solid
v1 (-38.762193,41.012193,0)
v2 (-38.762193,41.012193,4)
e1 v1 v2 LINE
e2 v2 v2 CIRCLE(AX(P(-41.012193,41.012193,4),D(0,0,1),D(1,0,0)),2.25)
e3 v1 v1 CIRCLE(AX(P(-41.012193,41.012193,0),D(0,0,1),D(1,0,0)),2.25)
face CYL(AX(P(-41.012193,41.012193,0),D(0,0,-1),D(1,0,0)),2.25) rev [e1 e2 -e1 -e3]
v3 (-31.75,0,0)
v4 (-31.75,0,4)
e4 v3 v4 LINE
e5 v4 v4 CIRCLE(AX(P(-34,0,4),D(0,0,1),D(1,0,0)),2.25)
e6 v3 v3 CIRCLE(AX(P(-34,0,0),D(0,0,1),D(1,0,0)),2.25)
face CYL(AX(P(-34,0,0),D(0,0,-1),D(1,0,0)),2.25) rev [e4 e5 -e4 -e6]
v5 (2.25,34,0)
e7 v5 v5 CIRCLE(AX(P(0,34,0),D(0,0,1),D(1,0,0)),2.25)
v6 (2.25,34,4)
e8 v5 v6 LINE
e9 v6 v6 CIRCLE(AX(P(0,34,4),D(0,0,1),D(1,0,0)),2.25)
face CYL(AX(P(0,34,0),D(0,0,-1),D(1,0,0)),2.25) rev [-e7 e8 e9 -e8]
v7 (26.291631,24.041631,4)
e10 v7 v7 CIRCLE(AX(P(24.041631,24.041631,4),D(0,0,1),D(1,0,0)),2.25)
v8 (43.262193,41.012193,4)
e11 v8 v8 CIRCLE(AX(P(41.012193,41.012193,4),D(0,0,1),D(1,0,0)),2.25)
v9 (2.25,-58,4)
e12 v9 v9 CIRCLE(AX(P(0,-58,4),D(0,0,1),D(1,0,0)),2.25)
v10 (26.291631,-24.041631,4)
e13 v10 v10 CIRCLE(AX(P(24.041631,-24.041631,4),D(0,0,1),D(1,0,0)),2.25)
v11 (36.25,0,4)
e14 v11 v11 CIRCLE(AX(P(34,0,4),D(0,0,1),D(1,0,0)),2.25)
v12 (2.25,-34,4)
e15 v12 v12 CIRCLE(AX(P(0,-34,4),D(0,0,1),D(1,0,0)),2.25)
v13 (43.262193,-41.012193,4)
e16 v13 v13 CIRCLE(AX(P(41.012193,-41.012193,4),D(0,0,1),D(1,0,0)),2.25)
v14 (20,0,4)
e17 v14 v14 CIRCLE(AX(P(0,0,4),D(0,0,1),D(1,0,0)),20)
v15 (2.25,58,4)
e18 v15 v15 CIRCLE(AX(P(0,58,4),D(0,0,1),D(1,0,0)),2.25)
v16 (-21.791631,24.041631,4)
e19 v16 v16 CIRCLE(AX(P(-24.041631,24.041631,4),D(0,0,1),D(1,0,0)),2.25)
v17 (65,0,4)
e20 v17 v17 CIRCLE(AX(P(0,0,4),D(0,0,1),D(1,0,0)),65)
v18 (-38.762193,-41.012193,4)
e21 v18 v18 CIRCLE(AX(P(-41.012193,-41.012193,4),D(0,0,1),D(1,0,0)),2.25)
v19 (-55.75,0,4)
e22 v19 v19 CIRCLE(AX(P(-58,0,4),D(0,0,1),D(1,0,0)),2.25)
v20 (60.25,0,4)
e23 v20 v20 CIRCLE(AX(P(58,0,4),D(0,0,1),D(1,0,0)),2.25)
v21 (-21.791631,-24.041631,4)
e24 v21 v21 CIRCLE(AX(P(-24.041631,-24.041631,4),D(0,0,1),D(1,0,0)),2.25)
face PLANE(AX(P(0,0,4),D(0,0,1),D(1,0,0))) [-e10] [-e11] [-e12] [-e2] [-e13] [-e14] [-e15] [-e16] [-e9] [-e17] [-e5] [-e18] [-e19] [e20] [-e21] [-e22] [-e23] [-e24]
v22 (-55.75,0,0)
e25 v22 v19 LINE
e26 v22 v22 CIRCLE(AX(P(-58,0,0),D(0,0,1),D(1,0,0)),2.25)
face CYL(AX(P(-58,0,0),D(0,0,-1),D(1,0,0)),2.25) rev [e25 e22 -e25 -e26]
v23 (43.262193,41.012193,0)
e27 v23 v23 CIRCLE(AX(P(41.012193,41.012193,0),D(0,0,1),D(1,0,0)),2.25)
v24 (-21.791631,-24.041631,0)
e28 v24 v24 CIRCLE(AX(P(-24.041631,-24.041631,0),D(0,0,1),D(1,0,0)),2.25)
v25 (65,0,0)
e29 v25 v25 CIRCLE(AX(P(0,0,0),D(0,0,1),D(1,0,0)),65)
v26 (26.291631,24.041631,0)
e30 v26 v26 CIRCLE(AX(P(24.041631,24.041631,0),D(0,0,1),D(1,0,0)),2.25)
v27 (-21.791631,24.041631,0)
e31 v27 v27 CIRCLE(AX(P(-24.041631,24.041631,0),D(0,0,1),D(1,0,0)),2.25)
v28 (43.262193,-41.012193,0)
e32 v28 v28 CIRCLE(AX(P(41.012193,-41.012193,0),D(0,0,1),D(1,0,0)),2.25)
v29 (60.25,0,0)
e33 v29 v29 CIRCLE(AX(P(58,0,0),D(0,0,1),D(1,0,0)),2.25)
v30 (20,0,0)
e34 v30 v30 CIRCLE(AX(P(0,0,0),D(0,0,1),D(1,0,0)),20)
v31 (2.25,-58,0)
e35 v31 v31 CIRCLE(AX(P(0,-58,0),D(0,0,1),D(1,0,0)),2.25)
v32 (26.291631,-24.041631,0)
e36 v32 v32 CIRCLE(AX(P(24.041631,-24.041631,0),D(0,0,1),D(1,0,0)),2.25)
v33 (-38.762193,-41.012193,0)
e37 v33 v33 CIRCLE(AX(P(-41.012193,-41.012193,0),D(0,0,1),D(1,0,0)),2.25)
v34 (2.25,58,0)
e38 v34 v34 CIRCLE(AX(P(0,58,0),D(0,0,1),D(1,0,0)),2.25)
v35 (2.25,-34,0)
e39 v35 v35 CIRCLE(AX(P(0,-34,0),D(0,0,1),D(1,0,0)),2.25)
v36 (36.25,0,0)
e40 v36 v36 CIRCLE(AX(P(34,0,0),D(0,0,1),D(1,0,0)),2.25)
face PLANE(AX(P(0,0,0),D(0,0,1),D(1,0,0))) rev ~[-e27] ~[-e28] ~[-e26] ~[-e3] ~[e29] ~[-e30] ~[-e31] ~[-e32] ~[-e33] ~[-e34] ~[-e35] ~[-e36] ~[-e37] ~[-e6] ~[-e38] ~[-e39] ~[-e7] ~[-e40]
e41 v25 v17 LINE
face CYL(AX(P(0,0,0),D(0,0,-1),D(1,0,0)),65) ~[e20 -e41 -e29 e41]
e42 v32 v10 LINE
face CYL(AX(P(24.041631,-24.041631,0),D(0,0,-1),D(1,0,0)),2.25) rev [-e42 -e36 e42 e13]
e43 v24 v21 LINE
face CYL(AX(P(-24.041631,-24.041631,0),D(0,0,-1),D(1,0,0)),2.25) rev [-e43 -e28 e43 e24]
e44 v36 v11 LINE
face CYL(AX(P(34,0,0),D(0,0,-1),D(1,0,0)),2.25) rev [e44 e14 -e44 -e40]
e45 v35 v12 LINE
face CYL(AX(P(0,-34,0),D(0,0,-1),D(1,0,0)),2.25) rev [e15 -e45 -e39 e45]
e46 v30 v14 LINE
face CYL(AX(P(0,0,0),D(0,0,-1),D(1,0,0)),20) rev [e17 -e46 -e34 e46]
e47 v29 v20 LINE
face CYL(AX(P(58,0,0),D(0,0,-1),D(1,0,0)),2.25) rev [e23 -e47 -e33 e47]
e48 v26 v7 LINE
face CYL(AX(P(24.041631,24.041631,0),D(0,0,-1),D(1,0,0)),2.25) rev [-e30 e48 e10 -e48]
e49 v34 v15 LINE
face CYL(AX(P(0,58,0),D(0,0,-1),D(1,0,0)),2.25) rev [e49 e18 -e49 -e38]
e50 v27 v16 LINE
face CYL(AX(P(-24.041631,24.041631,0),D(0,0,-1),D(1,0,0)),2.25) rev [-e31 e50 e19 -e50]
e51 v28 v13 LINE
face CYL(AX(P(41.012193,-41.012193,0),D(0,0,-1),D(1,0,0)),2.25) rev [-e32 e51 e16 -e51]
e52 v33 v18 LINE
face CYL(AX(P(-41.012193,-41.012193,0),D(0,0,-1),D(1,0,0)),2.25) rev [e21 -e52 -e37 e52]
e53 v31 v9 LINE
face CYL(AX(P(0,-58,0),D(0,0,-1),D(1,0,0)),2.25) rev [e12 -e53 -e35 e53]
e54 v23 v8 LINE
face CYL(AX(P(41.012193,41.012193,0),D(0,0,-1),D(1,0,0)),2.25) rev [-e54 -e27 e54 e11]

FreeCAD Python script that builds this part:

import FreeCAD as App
import Part
import Sketcher
from FreeCAD import Vector

doc = App.newDocument("Part")
params = doc.addObject("Spreadsheet::Sheet", "Params")
for row, (alias, value) in enumerate([
    ("sketch1_diameter", "130 mm"),
    ("sketch1_diameter2", "40 mm"),
    ("sketch1_diameter3", "4.5 mm"),
    ("pad1_length", "4 mm"),
], start=1):
    params.set(f"A{row}", alias)
    params.set(f"B{row}", "=" + value)
    params.setAlias(f"B{row}", alias)

body = doc.addObject("PartDesign::Body", "Body")

# Sketch on XY plane
sketch1 = body.newObject("Sketcher::SketchObject", "Sketch")
sketch1.AttachmentSupport = (doc.getObject("XY_Plane"), [""])
sketch1.MapMode = "FlatFace"
sketch1.addGeometry(Part.Circle(Vector(0, 0, 0), Vector(0, 0, 1), 65), False)
sketch1.addGeometry(Part.Circle(Vector(-41, -41, 0), Vector(0, 0, 1), 2.2), False)
sketch1.addGeometry(Part.Circle(Vector(-24, -24, 0), Vector(0, 0, 1), 2.2), False)
sketch1.addGeometry(Part.Circle(Vector(0, -58, 0), Vector(0, 0, 1), 2.2), False)
sketch1.addGeometry(Part.Circle(Vector(0, -34, 0), Vector(0, 0, 1), 2.2), False)
sketch1.addGeometry(Part.Circle(Vector(41, -41, 0), Vector(0, 0, 1), 2.2), False)
sketch1.addGeometry(Part.Circle(Vector(24, -24, 0), Vector(0, 0, 1), 2.2), False)
sketch1.addGeometry(Part.Circle(Vector(-58, 0, 0), Vector(0, 0, 1), 2.2), False)
sketch1.addGeometry(Part.Circle(Vector(-34, 0, 0), Vector(0, 0, 1), 2.2), False)
sketch1.addGeometry(Part.Circle(Vector(-24, 24, 0), Vector(0, 0, 1), 2.2), False)
sketch1.addGeometry(Part.Circle(Vector(-41, 41, 0), Vector(0, 0, 1), 2.2), False)
sketch1.addGeometry(Part.Circle(Vector(0, 0, 0), Vector(0, 0, 1), 20), False)
sketch1.addGeometry(Part.Circle(Vector(24, 24, 0), Vector(0, 0, 1), 2.2), False)
sketch1.addGeometry(Part.Circle(Vector(34, 0, 0), Vector(0, 0, 1), 2.2), False)
sketch1.addGeometry(Part.Circle(Vector(58, 0, 0), Vector(0, 0, 1), 2.2), False)
sketch1.addGeometry(Part.Circle(Vector(0, 34, 0), Vector(0, 0, 1), 2.2), False)
sketch1.addGeometry(Part.Circle(Vector(0, 58, 0), Vector(0, 0, 1), 2.2), False)
sketch1.addGeometry(Part.Circle(Vector(41, 41, 0), Vector(0, 0, 1), 2.2), False)
sketch1.addConstraint(Sketcher.Constraint("Coincident", 0, 3, -1, 1))
sketch1.addConstraint(Sketcher.Constraint("Coincident", 11, 3, -1, 1))
sketch1.addConstraint(Sketcher.Constraint("Equal", 1, 2))
sketch1.addConstraint(Sketcher.Constraint("Equal", 2, 3))
sketch1.addConstraint(Sketcher.Constraint("Equal", 3, 4))
sketch1.addConstraint(Sketcher.Constraint("Equal", 4, 5))
sketch1.addConstraint(Sketcher.Constraint("Equal", 5, 6))
sketch1.addConstraint(Sketcher.Constraint("Equal", 6, 7))
sketch1.addConstraint(Sketcher.Constraint("Equal", 7, 8))
sketch1.addConstraint(Sketcher.Constraint("Equal", 8, 9))
sketch1.addConstraint(Sketcher.Constraint("Equal", 9, 10))
sketch1.addConstraint(Sketcher.Constraint("Equal", 10, 12))
sketch1.addConstraint(Sketcher.Constraint("Equal", 12, 13))
sketch1.addConstraint(Sketcher.Constraint("Equal", 13, 14))
sketch1.addConstraint(Sketcher.Constraint("Equal", 14, 15))
sketch1.addConstraint(Sketcher.Constraint("Equal", 15, 16))
sketch1.addConstraint(Sketcher.Constraint("Equal", 16, 17))
sketch1.addConstraint(Sketcher.Constraint("Symmetric", 6, 3, 9, 3, -1, 1))
sketch1.addConstraint(Sketcher.Constraint("Symmetric", 5, 3, 10, 3, -1, 1))
sketch1.addConstraint(Sketcher.Constraint("Symmetric", 2, 3, 12, 3, -1, 1))
sketch1.addConstraint(Sketcher.Constraint("Symmetric", 8, 3, 13, 3, -1, 1))
sketch1.addConstraint(Sketcher.Constraint("Symmetric", 7, 3, 14, 3, -1, 1))
sketch1.addConstraint(Sketcher.Constraint("Symmetric", 4, 3, 15, 3, -1, 1))
sketch1.addConstraint(Sketcher.Constraint("Symmetric", 3, 3, 16, 3, -1, 1))
sketch1.addConstraint(Sketcher.Constraint("Symmetric", 1, 3, 17, 3, -1, 1))
sketch1.addConstraint(Sketcher.Constraint("Symmetric", 1, 3, 5, 3, -2))
sketch1.addConstraint(Sketcher.Constraint("Symmetric", 2, 3, 6, 3, -2))
sketch1.addConstraint(Sketcher.Constraint("PointOnObject", 3, 3, -2))
sketch1.addConstraint(Sketcher.Constraint("PointOnObject", 4, 3, -2))
sketch1.addConstraint(Sketcher.Constraint("PointOnObject", 7, 3, -1))
sketch1.addConstraint(Sketcher.Constraint("PointOnObject", 8, 3, -1))
sketch1.addConstraint(Sketcher.Constraint("Diameter", 0, 130.0))
sketch1.addConstraint(Sketcher.Constraint("Diameter", 11, 40.0))
sketch1.addConstraint(Sketcher.Constraint("Diameter", 1, 4.5))
sketch1.addConstraint(Sketcher.Constraint("DistanceY", 3, 3, -1, 1, 58.0))
sketch1.addConstraint(Sketcher.Constraint("DistanceY", 4, 3, -1, 1, 34.0))
sketch1.addConstraint(Sketcher.Constraint("DistanceX", 7, 3, -1, 1, 58.0))
sketch1.addConstraint(Sketcher.Constraint("DistanceX", 8, 3, -1, 1, 34.0))
sketch1.addConstraint(Sketcher.Constraint("DistanceX", 2, 3, -1, 1, 24.041631))
sketch1.addConstraint(Sketcher.Constraint("DistanceY", 2, 3, -1, 1, 24.041631))
sketch1.addConstraint(Sketcher.Constraint("DistanceX", 1, 3, -1, 1, 41.012193))
sketch1.addConstraint(Sketcher.Constraint("DistanceY", 1, 3, -1, 1, 41.012193))
sketch1.setExpression("Constraints[31]", "Params.sketch1_diameter")
sketch1.setExpression("Constraints[32]", "Params.sketch1_diameter2")
sketch1.setExpression("Constraints[33]", "Params.sketch1_diameter3")
pad1 = body.newObject("PartDesign::Pad", "Pad")
pad1.Profile = sketch1
pad1.setExpression("Length", "Params.pad1_length")

doc.recompute()
